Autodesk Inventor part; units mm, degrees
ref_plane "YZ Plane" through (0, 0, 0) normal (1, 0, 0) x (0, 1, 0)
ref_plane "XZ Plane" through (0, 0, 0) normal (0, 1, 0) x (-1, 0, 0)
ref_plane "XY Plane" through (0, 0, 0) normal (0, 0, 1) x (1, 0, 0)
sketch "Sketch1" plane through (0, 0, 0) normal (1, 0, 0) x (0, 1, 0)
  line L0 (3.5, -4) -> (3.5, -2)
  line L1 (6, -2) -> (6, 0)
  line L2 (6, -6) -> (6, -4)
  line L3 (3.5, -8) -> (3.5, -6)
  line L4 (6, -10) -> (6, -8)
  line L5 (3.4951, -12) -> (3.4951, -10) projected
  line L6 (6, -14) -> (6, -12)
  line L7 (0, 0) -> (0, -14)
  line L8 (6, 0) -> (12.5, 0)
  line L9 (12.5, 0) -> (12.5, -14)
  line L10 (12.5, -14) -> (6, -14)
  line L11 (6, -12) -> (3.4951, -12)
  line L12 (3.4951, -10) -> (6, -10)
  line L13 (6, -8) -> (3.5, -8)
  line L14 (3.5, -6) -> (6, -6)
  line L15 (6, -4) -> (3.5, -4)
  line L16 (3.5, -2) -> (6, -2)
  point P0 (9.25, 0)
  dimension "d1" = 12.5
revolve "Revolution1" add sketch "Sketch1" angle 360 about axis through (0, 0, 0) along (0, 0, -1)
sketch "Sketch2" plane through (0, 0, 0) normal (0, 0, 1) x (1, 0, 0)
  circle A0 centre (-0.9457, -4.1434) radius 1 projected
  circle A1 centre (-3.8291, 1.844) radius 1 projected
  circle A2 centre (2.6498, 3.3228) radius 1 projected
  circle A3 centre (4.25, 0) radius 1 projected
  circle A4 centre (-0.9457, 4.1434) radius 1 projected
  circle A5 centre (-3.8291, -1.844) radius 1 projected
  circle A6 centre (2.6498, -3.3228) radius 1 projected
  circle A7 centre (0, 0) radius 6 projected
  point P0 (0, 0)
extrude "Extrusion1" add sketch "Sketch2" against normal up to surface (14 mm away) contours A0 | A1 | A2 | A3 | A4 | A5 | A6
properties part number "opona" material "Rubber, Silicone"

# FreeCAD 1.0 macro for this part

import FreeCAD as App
import Part
import Sketcher
Q = App.Units.Quantity


def add_polygon(sketch, points):
    """Adds a closed chain of lines whose ends are joined by coincident constraints."""
    first, n = sketch.GeometryCount, len(points)
    for a, b in zip(points, points[1:] + points[:1]):
        sketch.addGeometry(Part.LineSegment(App.Vector(*a, 0), App.Vector(*b, 0)), False)
    for i in range(n):
        sketch.addConstraint(Sketcher.Constraint("Coincident", first + i, 2, first + (i + 1) % n, 1))

doc = App.newDocument("Part")
body = doc.addObject("PartDesign::Body", "Body")

sketch1 = body.newObject("Sketcher::SketchObject", "Sketch")
sketch1.AttachmentSupport = (doc.getObject("YZ_Plane"), [""])
sketch1.MapMode = "FlatFace"
add_polygon(sketch1, [(3.5, -2), (3.5, -4), (6, -4), (6, -6), (3.5, -6), (3.5, -8), (6, -8), (6, -10), (3.5, -10), (3.5, -12), (6, -12), (6, -14), (12.5, -14), (12.5, 0), (6, 0), (6, -2)])
sketch1.addConstraint([
    Sketcher.Constraint("Vertical", 0),
    Sketcher.Constraint("Horizontal", 1),
    Sketcher.Constraint("Vertical", 2),
    Sketcher.Constraint("Horizontal", 3),
    Sketcher.Constraint("Vertical", 4),
    Sketcher.Constraint("Horizontal", 5),
    Sketcher.Constraint("Vertical", 6),
    Sketcher.Constraint("Horizontal", 7),
    Sketcher.Constraint("Vertical", 8),
    Sketcher.Constraint("Horizontal", 9),
    Sketcher.Constraint("Vertical", 10),
    Sketcher.Constraint("Horizontal", 11),
    Sketcher.Constraint("Vertical", 12),
    Sketcher.Constraint("Horizontal", 13),
    Sketcher.Constraint("Vertical", 14),
    Sketcher.Constraint("Horizontal", 15),
    Sketcher.Constraint("PointOnObject", 12, 2, -1),
    Sketcher.Constraint("Vertical", 0, 2, 3, 2),
    Sketcher.Constraint("Vertical", 2, 2, 5, 2),
    Sketcher.Constraint("Vertical", 6, 2, 9, 2),
    Sketcher.Constraint("Vertical", 10, 2, 13, 2),
    Sketcher.Constraint("Equal", 0, 2),
    Sketcher.Constraint("Equal", 2, 4),
    Sketcher.Constraint("Equal", 4, 6),
    Sketcher.Constraint("Equal", 6, 8),
    Sketcher.Constraint("Equal", 8, 10),
    Sketcher.Constraint("Equal", 10, 14),
    Sketcher.Constraint("DistanceX", -1, 1, 11, 2, Q("12.5 mm")),
    Sketcher.Constraint("DistanceY", 0, 2, 0, 1, Q("2 mm")),
    Sketcher.Constraint("DistanceX", 1, 1, 1, 2, Q("2.5 mm")),
    Sketcher.Constraint("DistanceX", 11, 1, 11, 2, Q("6.5 mm")),
    Sketcher.Constraint("DistanceX", 7, 2, 7, 1, Q("2.505 mm")),
])
revolution = body.newObject("PartDesign::Revolution", "Revolution")
revolution.Profile = sketch1
revolution.ReferenceAxis = (sketch1, ["V_Axis"])
revolution.Angle = 360

sketch2 = body.newObject("Sketcher::SketchObject", "Sketch001")
sketch2.AttachmentSupport = (doc.getObject("XY_Plane"), [""])
sketch2.MapMode = "FlatFace"
sketch2.addGeometry([
    Part.Circle(App.Vector(-0.9, -4.1, 0), App.Vector(0, 0, 1), 1),
    Part.Circle(App.Vector(-3.8, 1.8, 0), App.Vector(0, 0, 1), 1),
    Part.Circle(App.Vector(2.6, 3.3, 0), App.Vector(0, 0, 1), 1),
    Part.Circle(App.Vector(4.2, 0, 0), App.Vector(0, 0, 1), 1),
    Part.Circle(App.Vector(-0.9, 4.1, 0), App.Vector(0, 0, 1), 1),
    Part.Circle(App.Vector(-3.8, -1.8, 0), App.Vector(0, 0, 1), 1),
    Part.Circle(App.Vector(2.6, -3.3, 0), App.Vector(0, 0, 1), 1),
], False)
sketch2.addConstraint([
    Sketcher.Constraint("Equal", 0, 1),
    Sketcher.Constraint("Equal", 1, 2),
    Sketcher.Constraint("Equal", 2, 3),
    Sketcher.Constraint("Equal", 3, 4),
    Sketcher.Constraint("Equal", 4, 5),
    Sketcher.Constraint("Equal", 5, 6),
    Sketcher.Constraint("Symmetric", 0, 3, 4, 3, -1),
    Sketcher.Constraint("Symmetric", 1, 3, 5, 3, -1),
    Sketcher.Constraint("Symmetric", 2, 3, 6, 3, -1),
    Sketcher.Constraint("PointOnObject", 3, 3, -1),
    Sketcher.Constraint("Diameter", 0, Q("2 mm")),
    Sketcher.Constraint("DistanceX", -1, 1, 3, 3, Q("4.25 mm")),
    Sketcher.Constraint("DistanceX", 1, 3, -1, 1, Q("3.829 mm")),
    Sketcher.Constraint("DistanceY", -1, 1, 1, 3, Q("1.844 mm")),
    Sketcher.Constraint("DistanceX", 1, 3, 2, 3, Q("6.479 mm")),
    Sketcher.Constraint("DistanceX", 0, 3, -1, 1, Q("0.9457 mm")),
    Sketcher.Constraint("DistanceY", 0, 3, -1, 1, Q("4.1434 mm")),
    Sketcher.Constraint("DistanceY", -1, 1, 2, 3, Q("3.3228 mm")),
])
pad1 = body.newObject("PartDesign::Pad", "Pad")
pad1.Profile = sketch2
pad1.Length = 14
pad1.Reversed = True

doc.recompute()
